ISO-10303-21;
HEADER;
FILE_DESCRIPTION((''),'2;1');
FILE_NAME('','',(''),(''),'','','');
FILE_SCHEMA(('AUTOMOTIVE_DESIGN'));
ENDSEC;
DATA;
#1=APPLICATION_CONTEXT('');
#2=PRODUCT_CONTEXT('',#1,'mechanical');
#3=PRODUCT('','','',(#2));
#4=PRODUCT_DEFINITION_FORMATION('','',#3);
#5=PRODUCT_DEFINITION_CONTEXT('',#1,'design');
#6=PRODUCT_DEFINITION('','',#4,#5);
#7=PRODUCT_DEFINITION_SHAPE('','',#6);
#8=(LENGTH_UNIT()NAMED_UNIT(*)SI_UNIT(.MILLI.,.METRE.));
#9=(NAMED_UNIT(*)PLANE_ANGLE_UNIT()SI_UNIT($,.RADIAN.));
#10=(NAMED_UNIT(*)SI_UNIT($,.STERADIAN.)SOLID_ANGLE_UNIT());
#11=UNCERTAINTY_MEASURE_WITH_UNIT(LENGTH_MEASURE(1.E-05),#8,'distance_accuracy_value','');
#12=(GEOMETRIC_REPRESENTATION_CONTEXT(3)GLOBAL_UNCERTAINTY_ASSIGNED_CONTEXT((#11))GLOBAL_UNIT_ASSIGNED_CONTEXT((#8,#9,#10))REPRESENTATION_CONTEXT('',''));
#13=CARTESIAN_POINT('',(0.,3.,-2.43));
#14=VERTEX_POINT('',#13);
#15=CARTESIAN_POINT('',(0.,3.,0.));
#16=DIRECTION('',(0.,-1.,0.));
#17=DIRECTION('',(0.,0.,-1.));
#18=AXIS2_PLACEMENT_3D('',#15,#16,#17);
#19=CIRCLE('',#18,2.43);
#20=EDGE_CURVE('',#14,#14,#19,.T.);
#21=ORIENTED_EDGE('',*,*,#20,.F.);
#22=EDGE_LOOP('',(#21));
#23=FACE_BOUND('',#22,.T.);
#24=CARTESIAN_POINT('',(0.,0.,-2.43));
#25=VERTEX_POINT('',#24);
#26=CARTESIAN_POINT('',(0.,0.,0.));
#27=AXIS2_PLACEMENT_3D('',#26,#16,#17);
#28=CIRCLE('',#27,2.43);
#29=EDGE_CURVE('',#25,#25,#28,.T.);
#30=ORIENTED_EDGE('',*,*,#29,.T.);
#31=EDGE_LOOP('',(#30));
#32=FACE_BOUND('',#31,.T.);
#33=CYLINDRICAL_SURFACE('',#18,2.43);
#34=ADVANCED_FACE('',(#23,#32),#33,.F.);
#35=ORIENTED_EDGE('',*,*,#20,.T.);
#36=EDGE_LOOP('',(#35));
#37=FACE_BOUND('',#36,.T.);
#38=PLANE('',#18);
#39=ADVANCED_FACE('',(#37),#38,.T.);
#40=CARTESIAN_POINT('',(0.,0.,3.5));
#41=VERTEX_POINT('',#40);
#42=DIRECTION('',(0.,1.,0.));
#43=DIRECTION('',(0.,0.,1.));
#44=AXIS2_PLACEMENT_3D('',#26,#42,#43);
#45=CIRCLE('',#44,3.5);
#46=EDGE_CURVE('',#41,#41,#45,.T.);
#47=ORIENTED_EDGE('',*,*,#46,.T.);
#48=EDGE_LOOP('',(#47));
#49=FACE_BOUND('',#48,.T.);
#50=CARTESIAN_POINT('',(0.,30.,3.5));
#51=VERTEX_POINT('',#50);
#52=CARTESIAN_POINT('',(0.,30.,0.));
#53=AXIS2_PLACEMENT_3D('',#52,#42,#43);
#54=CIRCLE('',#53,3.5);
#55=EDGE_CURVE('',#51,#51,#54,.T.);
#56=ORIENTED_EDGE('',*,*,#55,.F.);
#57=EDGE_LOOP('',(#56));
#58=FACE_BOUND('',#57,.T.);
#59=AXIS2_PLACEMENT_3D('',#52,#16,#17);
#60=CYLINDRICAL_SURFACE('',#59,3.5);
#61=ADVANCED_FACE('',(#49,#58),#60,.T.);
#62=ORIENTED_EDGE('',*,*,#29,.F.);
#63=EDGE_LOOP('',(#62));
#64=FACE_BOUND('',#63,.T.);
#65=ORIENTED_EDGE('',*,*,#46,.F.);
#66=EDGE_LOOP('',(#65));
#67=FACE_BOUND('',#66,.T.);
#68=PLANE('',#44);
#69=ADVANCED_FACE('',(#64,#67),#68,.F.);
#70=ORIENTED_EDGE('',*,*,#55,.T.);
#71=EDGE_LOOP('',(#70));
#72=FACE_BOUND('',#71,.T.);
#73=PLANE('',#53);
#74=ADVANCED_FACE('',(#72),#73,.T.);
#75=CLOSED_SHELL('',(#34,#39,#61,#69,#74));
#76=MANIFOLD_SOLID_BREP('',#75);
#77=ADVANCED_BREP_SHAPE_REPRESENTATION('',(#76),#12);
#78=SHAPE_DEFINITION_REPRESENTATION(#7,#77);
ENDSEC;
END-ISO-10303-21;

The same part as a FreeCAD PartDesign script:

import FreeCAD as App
import Part
import Sketcher
from FreeCAD import Vector
Q = App.Units.Quantity

doc = App.newDocument("Part")
body = doc.addObject("PartDesign::Body", "Body")

sketch1 = body.newObject("Sketcher::SketchObject", "Sketch")
sketch1.AttachmentSupport = (doc.getObject("XZ_Plane"), [""])
sketch1.MapMode = "FlatFace"
sketch1.addGeometry(Part.Circle(Vector(0, 0, 0), Vector(0, 0, 1), 3.5), False)
sketch1.addConstraint([
    Sketcher.Constraint("Coincident", 0, 3, -1, 1),
    Sketcher.Constraint("Diameter", 0, Q("7 mm")),
])
pad1 = body.newObject("PartDesign::Pad", "Pad")
pad1.Profile = sketch1
pad1.Length = 30
pad1.Reversed = True

sketch2 = body.newObject("Sketcher::SketchObject", "Sketch001")
sketch2.AttachmentSupport = (doc.getObject("XZ_Plane"), [""])
sketch2.MapMode = "FlatFace"
sketch2.addGeometry(Part.Circle(Vector(0, 0, 0), Vector(0, 0, 1), 2.4), False)
sketch2.addConstraint([
    Sketcher.Constraint("Coincident", 0, 3, -1, 1),
    Sketcher.Constraint("Diameter", 0, Q("4.86 mm")),
])
pocket1 = body.newObject("PartDesign::Pocket", "Pocket")
pocket1.Profile = sketch2
pocket1.Length = 3

doc.recompute()
